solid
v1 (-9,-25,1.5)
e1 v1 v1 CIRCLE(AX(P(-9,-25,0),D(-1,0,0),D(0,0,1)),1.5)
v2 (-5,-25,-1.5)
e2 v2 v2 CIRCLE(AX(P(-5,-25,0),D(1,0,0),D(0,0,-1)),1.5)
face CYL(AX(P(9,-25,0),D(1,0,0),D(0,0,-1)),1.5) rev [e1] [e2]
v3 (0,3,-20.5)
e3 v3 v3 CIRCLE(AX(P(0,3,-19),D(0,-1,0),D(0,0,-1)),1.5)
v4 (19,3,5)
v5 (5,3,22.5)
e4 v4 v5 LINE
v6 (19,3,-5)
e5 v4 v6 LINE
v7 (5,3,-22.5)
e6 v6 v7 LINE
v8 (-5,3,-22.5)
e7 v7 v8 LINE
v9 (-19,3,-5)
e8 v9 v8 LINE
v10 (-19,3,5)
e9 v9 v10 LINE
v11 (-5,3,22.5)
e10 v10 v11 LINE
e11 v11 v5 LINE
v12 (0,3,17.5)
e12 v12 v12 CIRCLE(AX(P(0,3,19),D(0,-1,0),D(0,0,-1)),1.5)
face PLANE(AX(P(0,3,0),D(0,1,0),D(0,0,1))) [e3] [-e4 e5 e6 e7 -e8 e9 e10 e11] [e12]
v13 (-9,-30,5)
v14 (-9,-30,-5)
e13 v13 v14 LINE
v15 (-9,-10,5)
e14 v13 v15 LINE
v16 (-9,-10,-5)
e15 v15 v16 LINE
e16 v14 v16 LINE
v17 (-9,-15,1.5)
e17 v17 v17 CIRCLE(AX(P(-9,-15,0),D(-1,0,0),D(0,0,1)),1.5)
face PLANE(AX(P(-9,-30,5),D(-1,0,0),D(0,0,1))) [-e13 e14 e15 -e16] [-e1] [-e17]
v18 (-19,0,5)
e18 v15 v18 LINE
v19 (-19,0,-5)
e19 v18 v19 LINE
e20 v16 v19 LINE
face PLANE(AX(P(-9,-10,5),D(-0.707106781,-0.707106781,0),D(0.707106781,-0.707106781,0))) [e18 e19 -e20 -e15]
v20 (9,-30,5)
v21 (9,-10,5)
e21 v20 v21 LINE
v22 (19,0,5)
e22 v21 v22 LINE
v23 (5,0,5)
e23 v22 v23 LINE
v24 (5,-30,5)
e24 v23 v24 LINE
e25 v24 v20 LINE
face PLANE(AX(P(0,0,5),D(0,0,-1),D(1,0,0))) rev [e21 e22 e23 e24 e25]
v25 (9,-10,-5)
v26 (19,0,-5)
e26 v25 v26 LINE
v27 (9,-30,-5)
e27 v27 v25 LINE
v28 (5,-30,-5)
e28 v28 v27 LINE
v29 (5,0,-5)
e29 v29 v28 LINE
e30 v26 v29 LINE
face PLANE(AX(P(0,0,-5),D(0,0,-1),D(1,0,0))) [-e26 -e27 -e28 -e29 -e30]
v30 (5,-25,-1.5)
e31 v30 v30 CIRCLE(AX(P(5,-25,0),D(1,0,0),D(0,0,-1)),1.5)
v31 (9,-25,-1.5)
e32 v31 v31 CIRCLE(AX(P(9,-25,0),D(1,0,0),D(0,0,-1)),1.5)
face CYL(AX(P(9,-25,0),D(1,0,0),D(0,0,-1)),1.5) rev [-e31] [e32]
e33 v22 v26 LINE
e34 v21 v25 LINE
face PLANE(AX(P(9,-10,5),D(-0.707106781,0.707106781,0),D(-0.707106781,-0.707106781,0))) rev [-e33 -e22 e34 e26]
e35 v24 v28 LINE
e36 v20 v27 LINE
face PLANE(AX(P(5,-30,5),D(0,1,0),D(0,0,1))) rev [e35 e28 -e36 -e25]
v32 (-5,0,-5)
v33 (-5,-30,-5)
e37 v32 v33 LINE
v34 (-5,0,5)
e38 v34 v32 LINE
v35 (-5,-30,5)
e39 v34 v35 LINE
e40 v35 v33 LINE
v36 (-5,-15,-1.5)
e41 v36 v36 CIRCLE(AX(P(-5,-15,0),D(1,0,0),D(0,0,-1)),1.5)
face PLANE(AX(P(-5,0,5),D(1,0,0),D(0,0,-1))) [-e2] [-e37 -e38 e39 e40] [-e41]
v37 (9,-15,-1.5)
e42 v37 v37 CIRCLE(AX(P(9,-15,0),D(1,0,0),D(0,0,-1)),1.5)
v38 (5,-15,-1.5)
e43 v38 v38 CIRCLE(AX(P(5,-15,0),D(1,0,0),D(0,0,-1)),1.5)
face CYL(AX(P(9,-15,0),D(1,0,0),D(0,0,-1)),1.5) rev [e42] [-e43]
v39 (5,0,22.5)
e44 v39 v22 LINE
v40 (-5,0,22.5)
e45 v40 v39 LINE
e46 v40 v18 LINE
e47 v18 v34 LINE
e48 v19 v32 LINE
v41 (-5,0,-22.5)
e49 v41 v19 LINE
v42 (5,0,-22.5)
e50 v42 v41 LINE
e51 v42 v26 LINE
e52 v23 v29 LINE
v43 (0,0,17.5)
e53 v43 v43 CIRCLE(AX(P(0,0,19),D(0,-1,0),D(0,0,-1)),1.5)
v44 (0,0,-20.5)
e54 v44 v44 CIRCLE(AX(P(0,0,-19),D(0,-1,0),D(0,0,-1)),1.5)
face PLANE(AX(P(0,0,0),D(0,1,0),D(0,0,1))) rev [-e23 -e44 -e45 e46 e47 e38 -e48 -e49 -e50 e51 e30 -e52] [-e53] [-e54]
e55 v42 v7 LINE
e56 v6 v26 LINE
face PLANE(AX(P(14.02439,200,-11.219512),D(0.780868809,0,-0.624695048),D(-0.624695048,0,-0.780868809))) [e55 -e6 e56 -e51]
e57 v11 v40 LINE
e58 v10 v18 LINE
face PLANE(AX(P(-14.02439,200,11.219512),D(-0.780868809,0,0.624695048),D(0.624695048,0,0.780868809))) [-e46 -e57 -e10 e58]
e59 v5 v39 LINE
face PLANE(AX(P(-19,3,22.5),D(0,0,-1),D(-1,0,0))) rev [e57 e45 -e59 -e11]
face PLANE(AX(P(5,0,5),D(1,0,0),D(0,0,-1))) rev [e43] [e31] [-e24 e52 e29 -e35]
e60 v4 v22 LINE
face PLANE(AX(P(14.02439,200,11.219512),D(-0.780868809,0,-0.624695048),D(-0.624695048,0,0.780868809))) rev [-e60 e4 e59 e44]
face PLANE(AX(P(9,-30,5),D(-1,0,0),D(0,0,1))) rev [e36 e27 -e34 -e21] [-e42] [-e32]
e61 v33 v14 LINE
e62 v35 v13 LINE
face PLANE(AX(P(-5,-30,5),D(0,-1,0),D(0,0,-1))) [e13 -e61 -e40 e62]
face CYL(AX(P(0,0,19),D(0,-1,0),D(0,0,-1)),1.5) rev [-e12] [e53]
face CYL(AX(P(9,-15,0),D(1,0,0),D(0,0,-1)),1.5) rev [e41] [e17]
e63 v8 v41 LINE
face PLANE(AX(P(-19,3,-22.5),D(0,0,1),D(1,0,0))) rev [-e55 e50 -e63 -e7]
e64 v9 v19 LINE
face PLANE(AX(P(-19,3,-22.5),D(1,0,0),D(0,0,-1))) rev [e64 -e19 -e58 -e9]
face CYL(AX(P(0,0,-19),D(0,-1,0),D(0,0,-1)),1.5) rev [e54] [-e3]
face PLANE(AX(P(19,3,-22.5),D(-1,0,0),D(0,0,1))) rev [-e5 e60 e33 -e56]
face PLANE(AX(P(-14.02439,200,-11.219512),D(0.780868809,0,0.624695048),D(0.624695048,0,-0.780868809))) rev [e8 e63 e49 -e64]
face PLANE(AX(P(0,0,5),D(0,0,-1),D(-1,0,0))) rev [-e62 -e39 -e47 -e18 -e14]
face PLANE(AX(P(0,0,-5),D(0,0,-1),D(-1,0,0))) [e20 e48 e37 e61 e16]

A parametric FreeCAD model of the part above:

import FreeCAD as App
import Part
import Sketcher

doc = App.newDocument("Part")
params = doc.addObject("Spreadsheet::Sheet", "Params")
for row, (alias, value) in enumerate([
    ("sketch1_width", "38 mm"),
    ("sketch1_height", "45 mm"),
    ("pad1_length", "3 mm"),
    ("sketch2_width", "4 mm"),
    ("sketch2_width2", "14 mm"),
    ("sketch2_height", "30 mm"),
    ("sketch2_height2", "20 mm"),
    ("pad2_length", "10 mm"),
    ("sketch3_diameter", "3 mm"),
    ("hole_diameter", "3 mm"),
    ("sketch4_diameter", "3 mm"),
    ("hole2_diameter", "3 mm"),
    ("sketch5_width", "14 mm"),
    ("sketch5_height", "17.5 mm"),
    ("pocket1_length", "200 mm"),
    ("sketch6_width", "14 mm"),
    ("sketch6_height", "17.5 mm"),
    ("pocket2_length", "200 mm"),
], start=1):
    params.set(f"A{row}", alias)
    params.set(f"B{row}", "=" + value)
    params.setAlias(f"B{row}", alias)

body = doc.addObject("PartDesign::Body", "Body")

sketch1 = body.newObject("Sketcher::SketchObject", "Sketch")
sketch1.AttachmentSupport = (doc.getObject("XZ_Plane"), [""])
sketch1.MapMode = "FlatFace"
sketch1.addGeometry([
    Part.LineSegment(App.Vector(-19, -22, 0), App.Vector(-19, 22, 0)),
    Part.LineSegment(App.Vector(-19, 22, 0), App.Vector(19, 22, 0)),
    Part.LineSegment(App.Vector(19, 22, 0), App.Vector(19, -22, 0)),
    Part.LineSegment(App.Vector(19, -22, 0), App.Vector(-19, -22, 0)),
], False)
sketch1.addConstraint([
    Sketcher.Constraint("Coincident", 0, 2, 1, 1),
    Sketcher.Constraint("Coincident", 1, 2, 2, 1),
    Sketcher.Constraint("Coincident", 2, 2, 3, 1),
    Sketcher.Constraint("Coincident", 3, 2, 0, 1),
    Sketcher.Constraint("Vertical", 0),
    Sketcher.Constraint("Horizontal", 1),
    Sketcher.Constraint("Vertical", 2),
    Sketcher.Constraint("Horizontal", 3),
    Sketcher.Constraint("Symmetric", 0, 2, 2, 2, -1, 1),
    Sketcher.Constraint("DistanceX", 1, 1, 1, 2, 38.0),
    Sketcher.Constraint("DistanceY", 0, 1, 0, 2, 45.0),
])
sketch1.setExpression("Constraints[9]", "Params.sketch1_width")
sketch1.setExpression("Constraints[10]", "Params.sketch1_height")
pad1 = body.newObject("PartDesign::Pad", "Pad")
pad1.Profile = sketch1
pad1.setExpression("Length", "Params.pad1_length")
pad1.Reversed = True

sketch2 = body.newObject("Sketcher::SketchObject", "Sketch001")
sketch2.AttachmentSupport = (doc.getObject("XY_Plane"), [""])
sketch2.MapMode = "FlatFace"
sketch2.AttachmentOffset = App.Placement(App.Vector(0, 0, -5), App.Rotation())
sketch2.addGeometry([
    Part.LineSegment(App.Vector(-5, 0, 0), App.Vector(-5, -30, 0)),
    Part.LineSegment(App.Vector(-5, -30, 0), App.Vector(-9, -30, 0)),
    Part.LineSegment(App.Vector(-9, -30, 0), App.Vector(-9, -10, 0)),
    Part.LineSegment(App.Vector(-9, -10, 0), App.Vector(-19, 0, 0)),
    Part.LineSegment(App.Vector(-19, 0, 0), App.Vector(-5, 0, 0)),
], False)
sketch2.addConstraint([
    Sketcher.Constraint("Coincident", 0, 2, 1, 1),
    Sketcher.Constraint("Coincident", 1, 2, 2, 1),
    Sketcher.Constraint("Coincident", 2, 2, 3, 1),
    Sketcher.Constraint("Coincident", 3, 2, 4, 1),
    Sketcher.Constraint("Coincident", 4, 2, 0, 1),
    Sketcher.Constraint("Vertical", 0),
    Sketcher.Constraint("Horizontal", 1),
    Sketcher.Constraint("Vertical", 2),
    Sketcher.Constraint("Horizontal", 4),
    Sketcher.Constraint("PointOnObject", 3, 2, -1),
    Sketcher.Constraint("DistanceX", 1, 2, 1, 1, 4.0),
    Sketcher.Constraint("DistanceX", 4, 1, 4, 2, 14.0),
    Sketcher.Constraint("DistanceY", 0, 2, 0, 1, 30.0),
    Sketcher.Constraint("DistanceY", 2, 1, 2, 2, 20.0),
    Sketcher.Constraint("DistanceX", 0, 2, -1, 1, 5.0),
])
sketch2.setExpression("Constraints[10]", "Params.sketch2_width")
sketch2.setExpression("Constraints[11]", "Params.sketch2_width2")
sketch2.setExpression("Constraints[12]", "Params.sketch2_height")
sketch2.setExpression("Constraints[13]", "Params.sketch2_height2")
pad2 = body.newObject("PartDesign::Pad", "Pad001")
pad2.Profile = sketch2
pad2.setExpression("Length", "Params.pad2_length")
doc.recompute()

mirrored = body.newObject("PartDesign::Mirrored", "Mirrored")
mirrored.Originals = [pad2]
mirrored.MirrorPlane = (doc.getObject("YZ_Plane"), [""])
body.Tip = mirrored

sketch3 = body.newObject("Sketcher::SketchObject", "Sketch002")
sketch3.AttachmentSupport = (doc.getObject("XZ_Plane"), [""])
sketch3.MapMode = "FlatFace"
sketch3.addGeometry([
    Part.Circle(App.Vector(0, 19, 0), App.Vector(0, 0, 1), 1.5),
    Part.Circle(App.Vector(0, -19, 0), App.Vector(0, 0, 1), 1.5),
], False)
sketch3.addConstraint([
    Sketcher.Constraint("Equal", 0, 1),
    Sketcher.Constraint("Symmetric", 0, 3, 1, 3, -1, 1),
    Sketcher.Constraint("PointOnObject", 0, 3, -2),
    Sketcher.Constraint("Diameter", 0, 3.0),
    Sketcher.Constraint("DistanceY", -1, 1, 0, 3, 19.0),
])
sketch3.setExpression("Constraints[3]", "Params.sketch3_diameter")
doc.recompute()
hole = body.newObject("PartDesign::Hole", "Hole")
hole.Profile = sketch3
hole.ThreadType = "None"
hole.setExpression("Diameter", "Params.hole_diameter")
hole.DepthType = "ThroughAll"

sketch4 = body.newObject("Sketcher::SketchObject", "Sketch003")
sketch4.AttachmentSupport = (doc.getObject("YZ_Plane"), [""])
sketch4.MapMode = "FlatFace"
sketch4.AttachmentOffset = App.Placement(App.Vector(0, 0, 9), App.Rotation())
sketch4.addGeometry([
    Part.Circle(App.Vector(-25, 0, 0), App.Vector(0, 0, 1), 1.5),
    Part.Circle(App.Vector(-15, 0, 0), App.Vector(0, 0, 1), 1.5),
], False)
sketch4.addConstraint([
    Sketcher.Constraint("Equal", 0, 1),
    Sketcher.Constraint("PointOnObject", 0, 3, -1),
    Sketcher.Constraint("PointOnObject", 1, 3, -1),
    Sketcher.Constraint("Diameter", 0, 3.0),
    Sketcher.Constraint("DistanceX", 0, 3, -1, 1, 25.0),
    Sketcher.Constraint("DistanceX", 1, 3, -1, 1, 15.0),
])
sketch4.setExpression("Constraints[3]", "Params.sketch4_diameter")
doc.recompute()
hole2 = body.newObject("PartDesign::Hole", "Hole001")
hole2.Profile = sketch4
hole2.ThreadType = "None"
hole2.setExpression("Diameter", "Params.hole2_diameter")
hole2.DepthType = "ThroughAll"

sketch5 = body.newObject("Sketcher::SketchObject", "Sketch004")
sketch5.AttachmentSupport = (doc.getObject("XZ_Plane"), [""])
sketch5.MapMode = "FlatFace"
sketch5.addGeometry([
    Part.LineSegment(App.Vector(-19, 5, 0), App.Vector(-5, 22, 0)),
    Part.LineSegment(App.Vector(-5, 22, 0), App.Vector(-19, 22, 0)),
    Part.LineSegment(App.Vector(-19, 22, 0), App.Vector(-19, 5, 0)),
], False)
sketch5.addConstraint([
    Sketcher.Constraint("Coincident", 0, 2, 1, 1),
    Sketcher.Constraint("Coincident", 1, 2, 2, 1),
    Sketcher.Constraint("Coincident", 2, 2, 0, 1),
    Sketcher.Constraint("Horizontal", 1),
    Sketcher.Constraint("Vertical", 2),
    Sketcher.Constraint("DistanceX", 1, 2, 1, 1, 14.0),
    Sketcher.Constraint("DistanceY", 2, 2, 2, 1, 17.5),
    Sketcher.Constraint("DistanceX", 0, 2, -1, 1, 5.0),
    Sketcher.Constraint("DistanceY", -1, 1, 2, 2, 5.0),
])
sketch5.setExpression("Constraints[5]", "Params.sketch5_width")
sketch5.setExpression("Constraints[6]", "Params.sketch5_height")
pocket1 = body.newObject("PartDesign::Pocket", "Pocket")
pocket1.Profile = sketch5
pocket1.setExpression("Length", "Params.pocket1_length")
doc.recompute()

mirrored2 = body.newObject("PartDesign::Mirrored", "Mirrored001")
mirrored2.Originals = [pocket1]
mirrored2.MirrorPlane = (doc.getObject("YZ_Plane"), [""])
body.Tip = mirrored2
doc.recompute()

mirrored3 = body.newObject("PartDesign::Mirrored", "Mirrored002")
mirrored3.Originals = [pocket1]
mirrored3.MirrorPlane = (doc.getObject("XY_Plane"), [""])
body.Tip = mirrored3

sketch6 = body.newObject("Sketcher::SketchObject", "Sketch005")
sketch6.AttachmentSupport = (doc.getObject("XZ_Plane"), [""])
sketch6.MapMode = "FlatFace"
sketch6.addGeometry([
    Part.LineSegment(App.Vector(19, -5, 0), App.Vector(5, -22, 0)),
    Part.LineSegment(App.Vector(5, -22, 0), App.Vector(19, -22, 0)),
    Part.LineSegment(App.Vector(19, -22, 0), App.Vector(19, -5, 0)),
], False)
sketch6.addConstraint([
    Sketcher.Constraint("Coincident", 0, 2, 1, 1),
    Sketcher.Constraint("Coincident", 1, 2, 2, 1),
    Sketcher.Constraint("Coincident", 2, 2, 0, 1),
    Sketcher.Constraint("Horizontal", 1),
    Sketcher.Constraint("Vertical", 2),
    Sketcher.Constraint("DistanceX", 1, 1, 1, 2, 14.0),
    Sketcher.Constraint("DistanceY", 2, 1, 2, 2, 17.5),
    Sketcher.Constraint("DistanceX", -1, 1, 0, 2, 5.0),
    Sketcher.Constraint("DistanceY", 2, 2, -1, 1, 5.0),
])
sketch6.setExpression("Constraints[5]", "Params.sketch6_width")
sketch6.setExpression("Constraints[6]", "Params.sketch6_height")
pocket2 = body.newObject("PartDesign::Pocket", "Pocket001")
pocket2.Profile = sketch6
pocket2.setExpression("Length", "Params.pocket2_length")

doc.recompute()
